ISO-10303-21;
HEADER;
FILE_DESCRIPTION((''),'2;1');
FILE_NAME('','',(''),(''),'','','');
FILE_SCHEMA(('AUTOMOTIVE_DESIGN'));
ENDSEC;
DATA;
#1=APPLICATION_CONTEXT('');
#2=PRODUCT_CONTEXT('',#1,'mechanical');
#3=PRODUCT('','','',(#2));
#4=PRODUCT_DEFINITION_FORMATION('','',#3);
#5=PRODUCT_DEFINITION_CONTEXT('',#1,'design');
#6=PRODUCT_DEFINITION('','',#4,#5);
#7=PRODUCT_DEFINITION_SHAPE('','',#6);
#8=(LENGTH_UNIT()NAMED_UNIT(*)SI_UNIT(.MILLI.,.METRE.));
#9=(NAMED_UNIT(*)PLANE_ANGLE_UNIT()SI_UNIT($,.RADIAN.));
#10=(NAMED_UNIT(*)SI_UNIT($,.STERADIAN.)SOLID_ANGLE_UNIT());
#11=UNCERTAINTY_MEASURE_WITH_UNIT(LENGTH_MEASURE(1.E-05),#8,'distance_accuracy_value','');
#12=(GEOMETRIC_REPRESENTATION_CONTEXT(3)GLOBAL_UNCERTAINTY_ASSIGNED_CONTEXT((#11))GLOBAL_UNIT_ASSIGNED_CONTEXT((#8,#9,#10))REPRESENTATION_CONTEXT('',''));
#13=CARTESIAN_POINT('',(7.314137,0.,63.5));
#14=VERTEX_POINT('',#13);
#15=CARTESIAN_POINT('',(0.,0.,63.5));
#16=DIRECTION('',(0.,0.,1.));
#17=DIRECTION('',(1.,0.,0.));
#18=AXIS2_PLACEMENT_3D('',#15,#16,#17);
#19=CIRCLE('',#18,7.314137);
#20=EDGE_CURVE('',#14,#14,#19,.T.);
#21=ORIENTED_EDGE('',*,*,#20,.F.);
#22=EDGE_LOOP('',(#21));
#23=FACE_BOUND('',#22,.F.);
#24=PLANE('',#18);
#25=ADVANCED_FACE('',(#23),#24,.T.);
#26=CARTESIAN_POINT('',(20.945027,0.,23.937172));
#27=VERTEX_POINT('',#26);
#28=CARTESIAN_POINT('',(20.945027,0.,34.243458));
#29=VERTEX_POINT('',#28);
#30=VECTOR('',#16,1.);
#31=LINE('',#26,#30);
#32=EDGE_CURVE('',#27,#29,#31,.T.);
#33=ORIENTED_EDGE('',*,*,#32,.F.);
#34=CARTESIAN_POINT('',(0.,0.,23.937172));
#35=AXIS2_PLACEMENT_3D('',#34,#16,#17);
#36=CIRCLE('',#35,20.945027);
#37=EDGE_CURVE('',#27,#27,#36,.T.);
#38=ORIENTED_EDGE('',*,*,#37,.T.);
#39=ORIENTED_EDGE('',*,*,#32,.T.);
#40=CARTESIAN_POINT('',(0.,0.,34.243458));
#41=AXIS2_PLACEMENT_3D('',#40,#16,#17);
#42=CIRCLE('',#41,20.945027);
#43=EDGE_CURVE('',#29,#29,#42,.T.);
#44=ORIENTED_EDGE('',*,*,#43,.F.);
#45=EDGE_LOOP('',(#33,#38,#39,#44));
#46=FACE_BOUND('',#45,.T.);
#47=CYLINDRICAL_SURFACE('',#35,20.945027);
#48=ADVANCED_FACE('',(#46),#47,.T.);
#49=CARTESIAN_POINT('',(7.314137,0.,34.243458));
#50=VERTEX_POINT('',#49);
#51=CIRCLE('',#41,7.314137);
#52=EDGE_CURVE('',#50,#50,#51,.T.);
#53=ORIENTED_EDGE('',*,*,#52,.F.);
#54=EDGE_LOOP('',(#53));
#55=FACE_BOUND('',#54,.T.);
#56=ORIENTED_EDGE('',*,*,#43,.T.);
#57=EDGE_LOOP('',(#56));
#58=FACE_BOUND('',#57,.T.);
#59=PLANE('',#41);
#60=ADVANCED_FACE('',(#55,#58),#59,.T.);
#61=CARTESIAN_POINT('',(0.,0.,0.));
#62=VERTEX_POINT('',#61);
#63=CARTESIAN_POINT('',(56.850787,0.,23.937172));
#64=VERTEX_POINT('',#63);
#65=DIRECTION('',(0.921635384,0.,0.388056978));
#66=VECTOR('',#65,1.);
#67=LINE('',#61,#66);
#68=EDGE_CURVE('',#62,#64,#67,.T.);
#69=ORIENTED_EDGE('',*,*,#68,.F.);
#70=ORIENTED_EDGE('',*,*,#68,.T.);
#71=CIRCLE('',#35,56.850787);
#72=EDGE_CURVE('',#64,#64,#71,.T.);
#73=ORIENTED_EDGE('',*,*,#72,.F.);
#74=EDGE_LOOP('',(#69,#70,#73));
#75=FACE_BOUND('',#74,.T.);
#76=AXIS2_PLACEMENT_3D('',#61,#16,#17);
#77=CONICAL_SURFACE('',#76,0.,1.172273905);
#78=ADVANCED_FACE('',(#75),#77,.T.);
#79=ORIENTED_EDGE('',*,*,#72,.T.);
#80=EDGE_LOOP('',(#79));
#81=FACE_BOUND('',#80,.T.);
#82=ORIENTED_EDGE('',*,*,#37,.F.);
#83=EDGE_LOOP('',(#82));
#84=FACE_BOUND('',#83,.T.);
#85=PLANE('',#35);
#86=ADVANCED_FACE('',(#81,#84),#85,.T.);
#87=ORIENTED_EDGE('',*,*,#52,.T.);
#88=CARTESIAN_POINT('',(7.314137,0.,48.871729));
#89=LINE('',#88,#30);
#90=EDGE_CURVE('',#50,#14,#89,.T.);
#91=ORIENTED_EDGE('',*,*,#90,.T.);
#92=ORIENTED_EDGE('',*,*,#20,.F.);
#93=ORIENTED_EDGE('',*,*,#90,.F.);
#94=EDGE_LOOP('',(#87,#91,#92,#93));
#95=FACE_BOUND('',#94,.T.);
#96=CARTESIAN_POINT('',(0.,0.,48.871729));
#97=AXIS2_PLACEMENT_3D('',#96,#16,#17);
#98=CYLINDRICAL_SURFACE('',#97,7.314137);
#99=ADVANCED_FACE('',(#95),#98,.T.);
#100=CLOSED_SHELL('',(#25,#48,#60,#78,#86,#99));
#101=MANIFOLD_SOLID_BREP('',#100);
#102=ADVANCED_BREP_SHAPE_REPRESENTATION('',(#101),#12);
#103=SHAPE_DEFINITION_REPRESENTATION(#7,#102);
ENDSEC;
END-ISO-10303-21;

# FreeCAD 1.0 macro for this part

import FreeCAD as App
import Part
import Sketcher
from FreeCAD import Vector
Q = App.Units.Quantity

doc = App.newDocument("Part")
body = doc.addObject("PartDesign::Body", "Body")

# Sketch on XZ plane
sketch1 = body.newObject("Sketcher::SketchObject", "Sketch")
sketch1.AttachmentSupport = (doc.getObject("XZ_Plane"), [""])
sketch1.MapMode = "FlatFace"
sketch1.addGeometry(Part.LineSegment(Vector(0, 0, 0), Vector(57, 24, 0)), False)
sketch1.addGeometry(Part.LineSegment(Vector(57, 24, 0), Vector(21, 24, 0)), False)
sketch1.addGeometry(Part.LineSegment(Vector(21, 24, 0), Vector(21, 34, 0)), False)
sketch1.addGeometry(Part.LineSegment(Vector(21, 34, 0), Vector(7, 34, 0)), False)
sketch1.addGeometry(Part.LineSegment(Vector(7, 34, 0), Vector(7, 64, 0)), False)
sketch1.addGeometry(Part.LineSegment(Vector(7, 64, 0), Vector(0, 64, 0)), False)
sketch1.addGeometry(Part.LineSegment(Vector(0, 64, 0), Vector(0, 0, 0)), False)
sketch1.addConstraint(Sketcher.Constraint("Coincident", 0, 2, 1, 1))
sketch1.addConstraint(Sketcher.Constraint("Coincident", 1, 2, 2, 1))
sketch1.addConstraint(Sketcher.Constraint("Coincident", 2, 2, 3, 1))
sketch1.addConstraint(Sketcher.Constraint("Coincident", 3, 2, 4, 1))
sketch1.addConstraint(Sketcher.Constraint("Coincident", 4, 2, 5, 1))
sketch1.addConstraint(Sketcher.Constraint("Coincident", 5, 2, 6, 1))
sketch1.addConstraint(Sketcher.Constraint("Coincident", 6, 2, 0, 1))
sketch1.addConstraint(Sketcher.Constraint("Horizontal", 1))
sketch1.addConstraint(Sketcher.Constraint("Vertical", 2))
sketch1.addConstraint(Sketcher.Constraint("Horizontal", 3))
sketch1.addConstraint(Sketcher.Constraint("Vertical", 4))
sketch1.addConstraint(Sketcher.Constraint("Horizontal", 5))
sketch1.addConstraint(Sketcher.Constraint("Vertical", 6))
sketch1.addConstraint(Sketcher.Constraint("Coincident", 6, 2, -1, 1))
sketch1.addConstraint(Sketcher.Constraint("DistanceY", 6, 2, 6, 1, Q("2.5 in")))
sketch1.addConstraint(Sketcher.Constraint("DistanceX", 1, 2, 1, 1, 35.90576))
sketch1.addConstraint(Sketcher.Constraint("DistanceX", 3, 2, 3, 1, 13.63089))
sketch1.addConstraint(Sketcher.Constraint("DistanceX", 5, 2, 5, 1, 7.314137))
sketch1.addConstraint(Sketcher.Constraint("DistanceY", 2, 1, 2, 2, 10.306286))
sketch1.addConstraint(Sketcher.Constraint("DistanceY", 4, 1, 4, 2, 29.256542))
revolution = body.newObject("PartDesign::Revolution", "Revolution")
revolution.Profile = sketch1
revolution.ReferenceAxis = (sketch1, ["V_Axis"])
revolution.Angle = 360

doc.recompute()
